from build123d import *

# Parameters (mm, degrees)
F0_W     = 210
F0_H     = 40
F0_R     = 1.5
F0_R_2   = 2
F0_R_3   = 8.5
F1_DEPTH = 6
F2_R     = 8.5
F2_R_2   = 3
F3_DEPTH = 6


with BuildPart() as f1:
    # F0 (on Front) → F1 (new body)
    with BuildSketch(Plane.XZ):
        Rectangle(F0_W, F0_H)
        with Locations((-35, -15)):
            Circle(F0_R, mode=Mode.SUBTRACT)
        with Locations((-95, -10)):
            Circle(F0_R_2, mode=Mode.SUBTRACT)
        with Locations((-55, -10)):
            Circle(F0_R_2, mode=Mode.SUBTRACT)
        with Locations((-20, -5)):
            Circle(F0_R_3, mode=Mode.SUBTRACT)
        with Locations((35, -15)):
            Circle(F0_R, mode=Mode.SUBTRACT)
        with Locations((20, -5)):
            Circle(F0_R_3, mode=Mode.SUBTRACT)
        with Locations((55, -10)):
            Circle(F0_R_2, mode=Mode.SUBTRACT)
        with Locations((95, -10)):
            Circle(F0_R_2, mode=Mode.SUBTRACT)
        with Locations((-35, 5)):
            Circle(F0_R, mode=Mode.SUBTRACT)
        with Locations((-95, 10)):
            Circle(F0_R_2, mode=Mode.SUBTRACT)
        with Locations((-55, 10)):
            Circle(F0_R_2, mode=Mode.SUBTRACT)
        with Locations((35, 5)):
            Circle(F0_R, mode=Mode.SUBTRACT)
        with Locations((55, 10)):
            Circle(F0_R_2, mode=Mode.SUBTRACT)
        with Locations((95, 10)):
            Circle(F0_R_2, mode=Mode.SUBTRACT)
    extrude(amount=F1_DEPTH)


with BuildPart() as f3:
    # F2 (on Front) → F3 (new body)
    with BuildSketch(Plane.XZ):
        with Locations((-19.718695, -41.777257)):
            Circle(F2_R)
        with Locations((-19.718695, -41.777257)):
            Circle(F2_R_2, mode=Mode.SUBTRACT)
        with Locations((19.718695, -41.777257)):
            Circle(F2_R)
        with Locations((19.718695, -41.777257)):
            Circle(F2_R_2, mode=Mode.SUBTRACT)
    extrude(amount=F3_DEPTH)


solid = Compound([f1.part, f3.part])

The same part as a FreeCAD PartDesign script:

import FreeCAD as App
import Part
import Sketcher

doc = App.newDocument("Part")
params = doc.addObject("Spreadsheet::Sheet", "Params")
for row, (alias, value) in enumerate([
    ("sketch1_diameter", "4 mm"),
    ("sketch1_diameter2", "3 mm"),
    ("sketch1_diameter3", "17 mm"),
    ("sketch1_width", "210 mm"),
    ("sketch1_height", "40 mm"),
    ("pad1_length", "6 mm"),
    ("sketch2_diameter", "17 mm"),
    ("sketch2_diameter2", "6 mm"),
    ("pad2_length", "6 mm"),
], start=1):
    params.set(f"A{row}", alias)
    params.set(f"B{row}", "=" + value)
    params.setAlias(f"B{row}", alias)

body = doc.addObject("PartDesign::Body", "Body")

# Sketch on XZ plane
sketch1 = body.newObject("Sketcher::SketchObject", "Sketch")
sketch1.AttachmentSupport = (doc.getObject("XZ_Plane"), [""])
sketch1.MapMode = "FlatFace"
sketch1.addGeometry([
    Part.LineSegment(App.Vector(-105, 20, 0), App.Vector(-105, -20, 0)),  # 0
    Part.LineSegment(App.Vector(-105, -20, 0), App.Vector(105, -20, 0)),  # 1
    Part.LineSegment(App.Vector(105, -20, 0), App.Vector(105, 20, 0)),  # 2
    Part.LineSegment(App.Vector(105, 20, 0), App.Vector(-105, 20, 0)),  # 3
    Part.Circle(App.Vector(-95, -10, 0), App.Vector(0, 0, 1), 2),  # 4
    Part.Circle(App.Vector(-55, -10, 0), App.Vector(0, 0, 1), 2),  # 5
    Part.Circle(App.Vector(-35, -15, 0), App.Vector(0, 0, 1), 1.5),  # 6
    Part.Circle(App.Vector(-20, -5, 0), App.Vector(0, 0, 1), 8.5),  # 7
    Part.Circle(App.Vector(35, -15, 0), App.Vector(0, 0, 1), 1.5),  # 8
    Part.Circle(App.Vector(55, -10, 0), App.Vector(0, 0, 1), 2),  # 9
    Part.Circle(App.Vector(95, -10, 0), App.Vector(0, 0, 1), 2),  # 10
    Part.Circle(App.Vector(20, -5, 0), App.Vector(0, 0, 1), 8.5),  # 11
    Part.Circle(App.Vector(-95, 10, 0), App.Vector(0, 0, 1), 2),  # 12
    Part.Circle(App.Vector(-55, 10, 0), App.Vector(0, 0, 1), 2),  # 13
    Part.Circle(App.Vector(-35, 5, 0), App.Vector(0, 0, 1), 1.5),  # 14
    Part.Circle(App.Vector(35, 5, 0), App.Vector(0, 0, 1), 1.5),  # 15
    Part.Circle(App.Vector(55, 10, 0), App.Vector(0, 0, 1), 2),  # 16
    Part.Circle(App.Vector(95, 10, 0), App.Vector(0, 0, 1), 2),  # 17
], False)
sketch1.addConstraint([
    Sketcher.Constraint("Coincident", 0, 2, 1, 1),
    Sketcher.Constraint("Coincident", 1, 2, 2, 1),
    Sketcher.Constraint("Coincident", 2, 2, 3, 1),
    Sketcher.Constraint("Coincident", 3, 2, 0, 1),
    Sketcher.Constraint("Vertical", 0),
    Sketcher.Constraint("Horizontal", 1),
    Sketcher.Constraint("Vertical", 2),
    Sketcher.Constraint("Horizontal", 3),
    Sketcher.Constraint("Equal", 4, 5),
    Sketcher.Constraint("Equal", 6, 8),
    Sketcher.Constraint("Equal", 5, 9),
    Sketcher.Constraint("Equal", 9, 10),
    Sketcher.Constraint("Equal", 7, 11),
    Sketcher.Constraint("Equal", 10, 12),
    Sketcher.Constraint("Equal", 12, 13),
    Sketcher.Constraint("Equal", 8, 14),
    Sketcher.Constraint("Equal", 14, 15),
    Sketcher.Constraint("Equal", 13, 16),
    Sketcher.Constraint("Equal", 16, 17),
    Sketcher.Constraint("Symmetric", 10, 3, 12, 3, -1, 1),
    Sketcher.Constraint("Symmetric", 9, 3, 13, 3, -1, 1),
    Sketcher.Constraint("Symmetric", 5, 3, 16, 3, -1, 1),
    Sketcher.Constraint("Symmetric", 4, 3, 17, 3, -1, 1),
    Sketcher.Constraint("Symmetric", 0, 2, 2, 2, -1, 1),
    Sketcher.Constraint("Symmetric", 6, 3, 8, 3, -2),
    Sketcher.Constraint("Symmetric", 5, 3, 9, 3, -2),
    Sketcher.Constraint("Symmetric", 4, 3, 10, 3, -2),
    Sketcher.Constraint("Symmetric", 7, 3, 11, 3, -2),
    Sketcher.Constraint("Symmetric", 14, 3, 15, 3, -2),
    Sketcher.Constraint("Horizontal", 4, 3, 5, 3),
    Sketcher.Constraint("Vertical", 6, 3, 14, 3),
    Sketcher.Constraint("Diameter", 4, 4.0),
    Sketcher.Constraint("Diameter", 6, 3.0),
    Sketcher.Constraint("Diameter", 7, 17.0),
    Sketcher.Constraint("DistanceX", 1, 1, 1, 2, 210.0),
    Sketcher.Constraint("DistanceY", 0, 2, 0, 1, 40.0),
    Sketcher.Constraint("DistanceX", 4, 3, -1, 1, 95.0),
    Sketcher.Constraint("DistanceY", 4, 3, -1, 1, 10.0),
    Sketcher.Constraint("DistanceX", 5, 3, -1, 1, 55.0),
    Sketcher.Constraint("DistanceX", 6, 3, -1, 1, 35.0),
    Sketcher.Constraint("DistanceY", 6, 3, -1, 1, 15.0),
    Sketcher.Constraint("DistanceX", 7, 3, -1, 1, 20.0),
    Sketcher.Constraint("DistanceY", 7, 3, -1, 1, 5.0),
    Sketcher.Constraint("DistanceY", -1, 1, 14, 3, 5.0),
])
sketch1.setExpression("Constraints[31]", "Params.sketch1_diameter")
sketch1.setExpression("Constraints[32]", "Params.sketch1_diameter2")
sketch1.setExpression("Constraints[33]", "Params.sketch1_diameter3")
sketch1.setExpression("Constraints[34]", "Params.sketch1_width")
sketch1.setExpression("Constraints[35]", "Params.sketch1_height")
pad1 = body.newObject("PartDesign::Pad", "Pad")
pad1.Profile = sketch1
pad1.setExpression("Length", "Params.pad1_length")
body2 = doc.addObject("PartDesign::Body", "Body001")
body2.AllowCompound = True

# Sketch on XZ plane
sketch2 = body2.newObject("Sketcher::SketchObject", "Sketch001")
sketch2.AttachmentSupport = (doc.getObject("XZ_Plane001"), [""])
sketch2.MapMode = "FlatFace"
sketch2.addGeometry([
    Part.Circle(App.Vector(-19.718695, -41.777257, 0), App.Vector(0, 0, 1), 8.5),
    Part.Circle(App.Vector(-19.718695, -41.777257, 0), App.Vector(0, 0, 1), 3),
    Part.Circle(App.Vector(19.718695, -41.777257, 0), App.Vector(0, 0, 1), 8.5),
    Part.Circle(App.Vector(19.718695, -41.777257, 0), App.Vector(0, 0, 1), 3),
], False)
sketch2.addConstraint([
    Sketcher.Constraint("Coincident", 1, 3, 0, 3),
    Sketcher.Constraint("Coincident", 3, 3, 2, 3),
    Sketcher.Constraint("Equal", 0, 2),
    Sketcher.Constraint("Equal", 1, 3),
    Sketcher.Constraint("Symmetric", 0, 3, 2, 3, -2),
    Sketcher.Constraint("Diameter", 0, 17.0),
    Sketcher.Constraint("Diameter", 1, 6.0),
    Sketcher.Constraint("DistanceX", 0, 3, 2, 3, 39.43739),
    Sketcher.Constraint("DistanceY", 0, 3, -1, 1, 41.777257),
])
sketch2.setExpression("Constraints[5]", "Params.sketch2_diameter")
sketch2.setExpression("Constraints[6]", "Params.sketch2_diameter2")
pad2 = body2.newObject("PartDesign::Pad", "Pad001")
pad2.Profile = sketch2
pad2.setExpression("Length", "Params.pad2_length")

doc.recompute()
